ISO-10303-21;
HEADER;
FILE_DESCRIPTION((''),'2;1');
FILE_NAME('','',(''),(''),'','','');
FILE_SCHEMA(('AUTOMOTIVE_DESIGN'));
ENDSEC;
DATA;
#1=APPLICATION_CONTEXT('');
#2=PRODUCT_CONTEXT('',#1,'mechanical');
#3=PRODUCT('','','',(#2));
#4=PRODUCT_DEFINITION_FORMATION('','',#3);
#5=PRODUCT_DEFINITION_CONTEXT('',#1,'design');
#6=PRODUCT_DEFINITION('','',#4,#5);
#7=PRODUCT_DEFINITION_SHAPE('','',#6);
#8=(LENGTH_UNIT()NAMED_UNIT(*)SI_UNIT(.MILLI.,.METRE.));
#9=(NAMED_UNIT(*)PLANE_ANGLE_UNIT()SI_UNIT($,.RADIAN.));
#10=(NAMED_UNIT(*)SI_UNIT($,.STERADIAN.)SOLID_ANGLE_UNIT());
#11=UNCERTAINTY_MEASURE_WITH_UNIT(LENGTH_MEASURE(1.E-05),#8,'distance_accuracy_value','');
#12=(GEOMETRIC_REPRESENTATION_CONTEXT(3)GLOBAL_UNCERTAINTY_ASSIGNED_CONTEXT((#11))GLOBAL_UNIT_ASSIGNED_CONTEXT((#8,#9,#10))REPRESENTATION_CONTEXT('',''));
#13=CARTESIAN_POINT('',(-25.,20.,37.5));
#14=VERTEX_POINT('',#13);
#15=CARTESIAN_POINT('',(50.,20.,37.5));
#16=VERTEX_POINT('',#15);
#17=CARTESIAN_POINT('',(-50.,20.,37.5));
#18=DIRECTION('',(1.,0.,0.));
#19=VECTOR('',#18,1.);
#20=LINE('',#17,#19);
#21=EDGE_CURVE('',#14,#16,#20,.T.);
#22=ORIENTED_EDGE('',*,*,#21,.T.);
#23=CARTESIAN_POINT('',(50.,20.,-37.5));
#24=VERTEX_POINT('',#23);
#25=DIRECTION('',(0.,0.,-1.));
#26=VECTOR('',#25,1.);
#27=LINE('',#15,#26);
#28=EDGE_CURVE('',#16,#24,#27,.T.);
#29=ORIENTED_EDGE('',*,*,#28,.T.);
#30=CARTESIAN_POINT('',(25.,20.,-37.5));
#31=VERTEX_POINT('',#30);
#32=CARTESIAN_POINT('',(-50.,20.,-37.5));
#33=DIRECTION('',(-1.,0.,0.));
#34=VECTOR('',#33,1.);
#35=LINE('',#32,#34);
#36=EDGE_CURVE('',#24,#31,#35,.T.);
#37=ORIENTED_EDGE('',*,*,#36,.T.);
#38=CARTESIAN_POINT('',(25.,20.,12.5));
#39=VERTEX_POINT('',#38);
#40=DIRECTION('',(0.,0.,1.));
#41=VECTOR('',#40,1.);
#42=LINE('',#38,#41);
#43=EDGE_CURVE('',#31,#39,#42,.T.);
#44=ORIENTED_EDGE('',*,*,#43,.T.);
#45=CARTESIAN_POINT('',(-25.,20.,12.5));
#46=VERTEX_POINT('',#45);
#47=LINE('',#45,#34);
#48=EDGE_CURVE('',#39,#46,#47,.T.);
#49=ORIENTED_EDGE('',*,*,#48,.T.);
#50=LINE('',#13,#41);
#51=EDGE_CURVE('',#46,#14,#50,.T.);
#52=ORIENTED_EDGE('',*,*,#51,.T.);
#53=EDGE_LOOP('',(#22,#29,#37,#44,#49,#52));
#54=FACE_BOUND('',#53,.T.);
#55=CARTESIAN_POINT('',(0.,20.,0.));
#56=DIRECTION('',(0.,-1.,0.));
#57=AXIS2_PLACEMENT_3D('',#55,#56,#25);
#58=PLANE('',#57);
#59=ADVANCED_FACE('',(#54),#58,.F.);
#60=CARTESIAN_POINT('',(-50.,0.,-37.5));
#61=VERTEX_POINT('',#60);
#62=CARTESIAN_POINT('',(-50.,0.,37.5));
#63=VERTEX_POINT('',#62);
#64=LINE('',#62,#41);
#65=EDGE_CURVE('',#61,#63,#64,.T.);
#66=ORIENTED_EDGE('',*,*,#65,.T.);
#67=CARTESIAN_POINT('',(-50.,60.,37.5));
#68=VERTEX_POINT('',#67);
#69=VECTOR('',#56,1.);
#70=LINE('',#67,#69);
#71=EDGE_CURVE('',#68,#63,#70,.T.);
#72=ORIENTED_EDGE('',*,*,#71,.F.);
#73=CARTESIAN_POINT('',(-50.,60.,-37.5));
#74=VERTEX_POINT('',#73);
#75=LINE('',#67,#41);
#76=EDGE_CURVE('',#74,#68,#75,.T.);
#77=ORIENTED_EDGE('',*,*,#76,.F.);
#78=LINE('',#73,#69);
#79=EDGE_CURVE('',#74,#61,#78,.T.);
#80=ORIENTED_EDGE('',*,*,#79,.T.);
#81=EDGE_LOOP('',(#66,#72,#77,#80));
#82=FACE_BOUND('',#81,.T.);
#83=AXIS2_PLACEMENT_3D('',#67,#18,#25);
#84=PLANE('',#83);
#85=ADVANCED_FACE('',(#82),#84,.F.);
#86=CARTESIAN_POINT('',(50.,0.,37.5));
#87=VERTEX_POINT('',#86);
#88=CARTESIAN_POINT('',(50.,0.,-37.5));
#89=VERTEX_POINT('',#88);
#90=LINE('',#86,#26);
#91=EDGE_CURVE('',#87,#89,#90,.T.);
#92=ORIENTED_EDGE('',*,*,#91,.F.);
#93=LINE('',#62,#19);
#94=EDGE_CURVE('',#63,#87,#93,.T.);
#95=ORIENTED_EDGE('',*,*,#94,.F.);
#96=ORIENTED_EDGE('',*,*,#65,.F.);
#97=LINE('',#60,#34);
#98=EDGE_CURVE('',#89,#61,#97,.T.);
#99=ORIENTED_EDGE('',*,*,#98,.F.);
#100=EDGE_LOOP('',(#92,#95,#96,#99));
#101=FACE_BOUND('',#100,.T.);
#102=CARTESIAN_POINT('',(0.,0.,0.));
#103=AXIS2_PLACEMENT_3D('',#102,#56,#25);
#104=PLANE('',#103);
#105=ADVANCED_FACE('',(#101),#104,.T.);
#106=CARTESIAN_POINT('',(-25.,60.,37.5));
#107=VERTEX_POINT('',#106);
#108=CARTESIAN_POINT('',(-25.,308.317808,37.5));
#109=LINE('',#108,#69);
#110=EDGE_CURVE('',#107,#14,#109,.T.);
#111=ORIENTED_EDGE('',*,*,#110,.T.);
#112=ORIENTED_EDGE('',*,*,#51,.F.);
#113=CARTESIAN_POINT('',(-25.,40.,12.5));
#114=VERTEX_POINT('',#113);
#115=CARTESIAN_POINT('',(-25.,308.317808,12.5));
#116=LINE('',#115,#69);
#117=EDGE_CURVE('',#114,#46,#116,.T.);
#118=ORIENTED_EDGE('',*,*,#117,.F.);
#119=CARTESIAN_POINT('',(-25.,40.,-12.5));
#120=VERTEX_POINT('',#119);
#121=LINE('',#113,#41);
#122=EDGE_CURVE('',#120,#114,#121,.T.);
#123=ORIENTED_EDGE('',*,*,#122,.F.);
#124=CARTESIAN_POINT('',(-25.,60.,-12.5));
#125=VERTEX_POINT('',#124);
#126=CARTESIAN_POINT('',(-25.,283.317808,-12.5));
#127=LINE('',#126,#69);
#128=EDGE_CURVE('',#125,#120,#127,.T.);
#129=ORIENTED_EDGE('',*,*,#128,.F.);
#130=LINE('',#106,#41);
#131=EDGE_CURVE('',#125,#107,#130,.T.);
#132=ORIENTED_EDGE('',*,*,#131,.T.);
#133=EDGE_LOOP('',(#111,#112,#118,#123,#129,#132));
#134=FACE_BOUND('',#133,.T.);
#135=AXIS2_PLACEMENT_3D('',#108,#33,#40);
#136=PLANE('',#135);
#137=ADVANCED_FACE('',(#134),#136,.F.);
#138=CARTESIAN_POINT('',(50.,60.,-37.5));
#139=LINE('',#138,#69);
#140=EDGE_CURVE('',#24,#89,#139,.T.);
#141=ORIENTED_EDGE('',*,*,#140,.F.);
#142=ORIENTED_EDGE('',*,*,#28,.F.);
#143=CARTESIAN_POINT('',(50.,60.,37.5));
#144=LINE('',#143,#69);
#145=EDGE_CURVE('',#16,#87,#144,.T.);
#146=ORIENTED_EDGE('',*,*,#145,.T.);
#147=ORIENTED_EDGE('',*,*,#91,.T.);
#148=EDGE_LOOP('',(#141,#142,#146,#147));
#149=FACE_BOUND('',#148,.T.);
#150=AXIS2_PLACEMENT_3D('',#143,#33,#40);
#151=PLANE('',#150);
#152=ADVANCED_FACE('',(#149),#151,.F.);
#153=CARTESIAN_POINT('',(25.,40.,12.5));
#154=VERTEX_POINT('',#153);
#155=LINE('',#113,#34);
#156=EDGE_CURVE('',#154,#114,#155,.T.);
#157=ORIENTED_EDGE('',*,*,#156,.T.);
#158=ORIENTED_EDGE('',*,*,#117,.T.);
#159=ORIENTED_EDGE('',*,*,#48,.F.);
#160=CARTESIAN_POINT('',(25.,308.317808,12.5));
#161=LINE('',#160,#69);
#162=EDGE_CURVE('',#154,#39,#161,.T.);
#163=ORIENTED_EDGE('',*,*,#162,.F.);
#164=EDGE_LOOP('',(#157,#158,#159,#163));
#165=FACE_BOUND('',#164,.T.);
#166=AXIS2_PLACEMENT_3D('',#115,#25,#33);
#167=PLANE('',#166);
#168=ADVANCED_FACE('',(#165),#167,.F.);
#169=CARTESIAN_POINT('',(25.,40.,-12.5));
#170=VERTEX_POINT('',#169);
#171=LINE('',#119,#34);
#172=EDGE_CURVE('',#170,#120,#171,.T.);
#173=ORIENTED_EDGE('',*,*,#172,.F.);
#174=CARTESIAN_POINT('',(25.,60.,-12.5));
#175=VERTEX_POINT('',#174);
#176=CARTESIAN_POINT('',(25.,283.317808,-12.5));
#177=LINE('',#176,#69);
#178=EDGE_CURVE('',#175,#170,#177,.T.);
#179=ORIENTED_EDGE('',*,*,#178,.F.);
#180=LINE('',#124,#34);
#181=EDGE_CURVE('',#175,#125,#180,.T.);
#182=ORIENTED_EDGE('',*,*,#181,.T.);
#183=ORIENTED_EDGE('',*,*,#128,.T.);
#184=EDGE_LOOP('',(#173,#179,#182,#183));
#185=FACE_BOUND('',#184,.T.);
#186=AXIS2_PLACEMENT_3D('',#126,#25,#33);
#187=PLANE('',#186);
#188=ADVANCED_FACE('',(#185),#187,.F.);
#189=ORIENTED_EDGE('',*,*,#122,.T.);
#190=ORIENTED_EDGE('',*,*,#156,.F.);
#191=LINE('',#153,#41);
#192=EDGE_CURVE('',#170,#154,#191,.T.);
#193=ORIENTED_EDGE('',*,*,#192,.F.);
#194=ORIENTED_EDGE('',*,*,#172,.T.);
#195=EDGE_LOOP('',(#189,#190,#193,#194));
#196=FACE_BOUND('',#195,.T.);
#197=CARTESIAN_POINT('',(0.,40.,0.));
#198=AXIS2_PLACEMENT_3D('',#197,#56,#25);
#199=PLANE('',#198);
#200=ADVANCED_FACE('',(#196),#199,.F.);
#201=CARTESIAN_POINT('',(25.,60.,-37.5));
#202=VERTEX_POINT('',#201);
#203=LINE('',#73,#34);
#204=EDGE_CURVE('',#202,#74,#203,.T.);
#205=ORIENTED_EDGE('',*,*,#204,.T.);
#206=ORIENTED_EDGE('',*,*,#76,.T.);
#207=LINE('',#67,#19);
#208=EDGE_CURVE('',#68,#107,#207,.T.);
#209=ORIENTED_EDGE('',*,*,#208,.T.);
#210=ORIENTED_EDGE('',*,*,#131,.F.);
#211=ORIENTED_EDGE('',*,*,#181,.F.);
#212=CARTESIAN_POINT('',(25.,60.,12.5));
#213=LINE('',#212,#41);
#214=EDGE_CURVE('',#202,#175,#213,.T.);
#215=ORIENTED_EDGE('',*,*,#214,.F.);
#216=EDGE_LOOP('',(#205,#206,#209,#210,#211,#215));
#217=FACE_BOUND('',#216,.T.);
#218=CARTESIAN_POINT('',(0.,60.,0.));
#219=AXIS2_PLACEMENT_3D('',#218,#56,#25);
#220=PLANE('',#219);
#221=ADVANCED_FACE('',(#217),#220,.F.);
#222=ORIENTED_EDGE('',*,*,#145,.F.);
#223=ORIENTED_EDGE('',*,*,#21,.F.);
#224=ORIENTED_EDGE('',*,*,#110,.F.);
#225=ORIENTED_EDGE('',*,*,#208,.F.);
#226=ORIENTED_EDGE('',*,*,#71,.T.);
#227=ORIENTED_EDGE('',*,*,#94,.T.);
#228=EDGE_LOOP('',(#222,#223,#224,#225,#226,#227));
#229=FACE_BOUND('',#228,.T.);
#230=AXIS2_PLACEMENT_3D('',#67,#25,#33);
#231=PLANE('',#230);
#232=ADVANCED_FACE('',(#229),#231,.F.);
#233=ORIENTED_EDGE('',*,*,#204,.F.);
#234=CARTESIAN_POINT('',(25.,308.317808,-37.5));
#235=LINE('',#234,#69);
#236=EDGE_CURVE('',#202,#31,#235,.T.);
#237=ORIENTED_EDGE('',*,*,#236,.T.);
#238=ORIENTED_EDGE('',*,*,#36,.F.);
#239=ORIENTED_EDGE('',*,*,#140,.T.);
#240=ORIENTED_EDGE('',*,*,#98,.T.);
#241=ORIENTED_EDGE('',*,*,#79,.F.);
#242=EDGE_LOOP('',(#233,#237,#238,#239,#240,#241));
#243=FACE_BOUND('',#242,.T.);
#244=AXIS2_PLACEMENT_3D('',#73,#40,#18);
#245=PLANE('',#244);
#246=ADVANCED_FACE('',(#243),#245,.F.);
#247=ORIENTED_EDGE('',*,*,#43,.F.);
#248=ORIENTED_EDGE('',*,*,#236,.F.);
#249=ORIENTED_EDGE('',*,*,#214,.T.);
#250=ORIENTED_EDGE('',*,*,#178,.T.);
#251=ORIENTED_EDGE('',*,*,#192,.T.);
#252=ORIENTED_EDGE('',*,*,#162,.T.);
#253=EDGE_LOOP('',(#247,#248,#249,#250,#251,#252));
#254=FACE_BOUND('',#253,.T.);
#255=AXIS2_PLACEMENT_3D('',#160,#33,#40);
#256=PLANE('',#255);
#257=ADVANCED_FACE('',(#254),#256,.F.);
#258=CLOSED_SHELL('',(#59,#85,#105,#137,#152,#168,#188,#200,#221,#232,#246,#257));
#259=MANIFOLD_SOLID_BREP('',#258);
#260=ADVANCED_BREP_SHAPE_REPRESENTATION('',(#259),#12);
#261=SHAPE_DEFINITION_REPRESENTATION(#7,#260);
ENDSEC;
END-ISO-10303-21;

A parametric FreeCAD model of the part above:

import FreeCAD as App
import Part
import Sketcher
from FreeCAD import Vector


def add_polygon(sketch, points):
    """Adds a closed chain of lines whose ends are joined by coincident constraints."""
    first, n = sketch.GeometryCount, len(points)
    for a, b in zip(points, points[1:] + points[:1]):
        sketch.addGeometry(Part.LineSegment(App.Vector(*a, 0), App.Vector(*b, 0)), False)
    for i in range(n):
        sketch.addConstraint(Sketcher.Constraint("Coincident", first + i, 2, first + (i + 1) % n, 1))

doc = App.newDocument("Part")
body = doc.addObject("PartDesign::Body", "Body")

sketch1 = body.newObject("Sketcher::SketchObject", "Sketch")
sketch1.AttachmentSupport = (doc.getObject("XZ_Plane"), [""])
sketch1.MapMode = "FlatFace"
add_polygon(sketch1, [(-50, -37.5), (-50, 37.5), (50, 37.5), (50, -37.5)])
sketch1.addConstraint([
    Sketcher.Constraint("Vertical", 0),
    Sketcher.Constraint("Horizontal", 1),
    Sketcher.Constraint("Vertical", 2),
    Sketcher.Constraint("Horizontal", 3),
    Sketcher.Constraint("Symmetric", 0, 2, 2, 2, -1, 1),
    Sketcher.Constraint("DistanceX", 1, 1, 1, 2, 100.0),
    Sketcher.Constraint("DistanceY", 0, 1, 0, 2, 75.0),
])
pad1 = body.newObject("PartDesign::Pad", "Pad")
pad1.Profile = sketch1
pad1.Length = 60
pad1.Reversed = True

sketch2 = body.newObject("Sketcher::SketchObject", "Sketch001")
sketch2.AttachmentSupport = (doc.getObject("XZ_Plane"), [""])
sketch2.MapMode = "FlatFace"
sketch2.AttachmentOffset = App.Placement(Vector(0, 0, -60), App.Rotation())
add_polygon(sketch2, [(-25, 12.5), (-25, 259.632034), (417.21872, 302.213328), (467.21872, -217.05074), (25, -259.632034), (25, 12.5)])
sketch2.addConstraint([
    Sketcher.Constraint("Vertical", 0),
    Sketcher.Constraint("Vertical", 4),
    Sketcher.Constraint("Horizontal", 5),
    Sketcher.Constraint("Symmetric", 0, 2, 3, 2, -1, 1),
    Sketcher.Constraint("Perpendicular", 1, 2),
    Sketcher.Constraint("Perpendicular", 2, 3),
    Sketcher.Constraint("Equal", 1, 3),
    Sketcher.Constraint("DistanceX", 5, 2, 5, 1, 50.0),
    Sketcher.Constraint("DistanceY", -1, 1, 4, 2, 12.5),
    Sketcher.Constraint("Distance", 1, 444.264069),
    Sketcher.Constraint("DistanceY", 0, 1, 0, 2, 247.132034),
])
pocket1 = body.newObject("PartDesign::Pocket", "Pocket")
pocket1.Profile = sketch2
pocket1.Type = "TwoLengths"
pocket1.Length = 87.638617
pocket1.Length2 = 40

sketch3 = body.newObject("Sketcher::SketchObject", "Sketch002")
sketch3.AttachmentSupport = (doc.getObject("XZ_Plane"), [""])
sketch3.MapMode = "FlatFace"
sketch3.AttachmentOffset = App.Placement(Vector(0, 0, -60), App.Rotation())
add_polygon(sketch3, [(-25, -12.5), (-25, 234.632034), (417.008192, 279.345804), (467.008192, -214.918265), (25, -259.632034), (25, -12.5)])
sketch3.addConstraint([
    Sketcher.Constraint("Vertical", 0),
    Sketcher.Constraint("Vertical", 4),
    Sketcher.Constraint("Horizontal", 5),
    Sketcher.Constraint("Perpendicular", 1, 2),
    Sketcher.Constraint("Perpendicular", 2, 3),
    Sketcher.Constraint("Equal", 0, 4),
    Sketcher.Constraint("Equal", 1, 3),
    Sketcher.Constraint("DistanceX", 5, 2, 5, 1, 50.0),
    Sketcher.Constraint("DistanceX", 0, 2, -1, 1, 25.0),
    Sketcher.Constraint("DistanceY", 4, 2, -1, 1, 12.5),
    Sketcher.Constraint("DistanceY", 2, 2, 0, 2, 449.550299),
    Sketcher.Constraint("Distance", 1, 444.264069),
])
pocket2 = body.newObject("PartDesign::Pocket", "Pocket001")
pocket2.Profile = sketch3
pocket2.Type = "TwoLengths"
pocket2.Length = 87.638617
pocket2.Length2 = 20

doc.recompute()
